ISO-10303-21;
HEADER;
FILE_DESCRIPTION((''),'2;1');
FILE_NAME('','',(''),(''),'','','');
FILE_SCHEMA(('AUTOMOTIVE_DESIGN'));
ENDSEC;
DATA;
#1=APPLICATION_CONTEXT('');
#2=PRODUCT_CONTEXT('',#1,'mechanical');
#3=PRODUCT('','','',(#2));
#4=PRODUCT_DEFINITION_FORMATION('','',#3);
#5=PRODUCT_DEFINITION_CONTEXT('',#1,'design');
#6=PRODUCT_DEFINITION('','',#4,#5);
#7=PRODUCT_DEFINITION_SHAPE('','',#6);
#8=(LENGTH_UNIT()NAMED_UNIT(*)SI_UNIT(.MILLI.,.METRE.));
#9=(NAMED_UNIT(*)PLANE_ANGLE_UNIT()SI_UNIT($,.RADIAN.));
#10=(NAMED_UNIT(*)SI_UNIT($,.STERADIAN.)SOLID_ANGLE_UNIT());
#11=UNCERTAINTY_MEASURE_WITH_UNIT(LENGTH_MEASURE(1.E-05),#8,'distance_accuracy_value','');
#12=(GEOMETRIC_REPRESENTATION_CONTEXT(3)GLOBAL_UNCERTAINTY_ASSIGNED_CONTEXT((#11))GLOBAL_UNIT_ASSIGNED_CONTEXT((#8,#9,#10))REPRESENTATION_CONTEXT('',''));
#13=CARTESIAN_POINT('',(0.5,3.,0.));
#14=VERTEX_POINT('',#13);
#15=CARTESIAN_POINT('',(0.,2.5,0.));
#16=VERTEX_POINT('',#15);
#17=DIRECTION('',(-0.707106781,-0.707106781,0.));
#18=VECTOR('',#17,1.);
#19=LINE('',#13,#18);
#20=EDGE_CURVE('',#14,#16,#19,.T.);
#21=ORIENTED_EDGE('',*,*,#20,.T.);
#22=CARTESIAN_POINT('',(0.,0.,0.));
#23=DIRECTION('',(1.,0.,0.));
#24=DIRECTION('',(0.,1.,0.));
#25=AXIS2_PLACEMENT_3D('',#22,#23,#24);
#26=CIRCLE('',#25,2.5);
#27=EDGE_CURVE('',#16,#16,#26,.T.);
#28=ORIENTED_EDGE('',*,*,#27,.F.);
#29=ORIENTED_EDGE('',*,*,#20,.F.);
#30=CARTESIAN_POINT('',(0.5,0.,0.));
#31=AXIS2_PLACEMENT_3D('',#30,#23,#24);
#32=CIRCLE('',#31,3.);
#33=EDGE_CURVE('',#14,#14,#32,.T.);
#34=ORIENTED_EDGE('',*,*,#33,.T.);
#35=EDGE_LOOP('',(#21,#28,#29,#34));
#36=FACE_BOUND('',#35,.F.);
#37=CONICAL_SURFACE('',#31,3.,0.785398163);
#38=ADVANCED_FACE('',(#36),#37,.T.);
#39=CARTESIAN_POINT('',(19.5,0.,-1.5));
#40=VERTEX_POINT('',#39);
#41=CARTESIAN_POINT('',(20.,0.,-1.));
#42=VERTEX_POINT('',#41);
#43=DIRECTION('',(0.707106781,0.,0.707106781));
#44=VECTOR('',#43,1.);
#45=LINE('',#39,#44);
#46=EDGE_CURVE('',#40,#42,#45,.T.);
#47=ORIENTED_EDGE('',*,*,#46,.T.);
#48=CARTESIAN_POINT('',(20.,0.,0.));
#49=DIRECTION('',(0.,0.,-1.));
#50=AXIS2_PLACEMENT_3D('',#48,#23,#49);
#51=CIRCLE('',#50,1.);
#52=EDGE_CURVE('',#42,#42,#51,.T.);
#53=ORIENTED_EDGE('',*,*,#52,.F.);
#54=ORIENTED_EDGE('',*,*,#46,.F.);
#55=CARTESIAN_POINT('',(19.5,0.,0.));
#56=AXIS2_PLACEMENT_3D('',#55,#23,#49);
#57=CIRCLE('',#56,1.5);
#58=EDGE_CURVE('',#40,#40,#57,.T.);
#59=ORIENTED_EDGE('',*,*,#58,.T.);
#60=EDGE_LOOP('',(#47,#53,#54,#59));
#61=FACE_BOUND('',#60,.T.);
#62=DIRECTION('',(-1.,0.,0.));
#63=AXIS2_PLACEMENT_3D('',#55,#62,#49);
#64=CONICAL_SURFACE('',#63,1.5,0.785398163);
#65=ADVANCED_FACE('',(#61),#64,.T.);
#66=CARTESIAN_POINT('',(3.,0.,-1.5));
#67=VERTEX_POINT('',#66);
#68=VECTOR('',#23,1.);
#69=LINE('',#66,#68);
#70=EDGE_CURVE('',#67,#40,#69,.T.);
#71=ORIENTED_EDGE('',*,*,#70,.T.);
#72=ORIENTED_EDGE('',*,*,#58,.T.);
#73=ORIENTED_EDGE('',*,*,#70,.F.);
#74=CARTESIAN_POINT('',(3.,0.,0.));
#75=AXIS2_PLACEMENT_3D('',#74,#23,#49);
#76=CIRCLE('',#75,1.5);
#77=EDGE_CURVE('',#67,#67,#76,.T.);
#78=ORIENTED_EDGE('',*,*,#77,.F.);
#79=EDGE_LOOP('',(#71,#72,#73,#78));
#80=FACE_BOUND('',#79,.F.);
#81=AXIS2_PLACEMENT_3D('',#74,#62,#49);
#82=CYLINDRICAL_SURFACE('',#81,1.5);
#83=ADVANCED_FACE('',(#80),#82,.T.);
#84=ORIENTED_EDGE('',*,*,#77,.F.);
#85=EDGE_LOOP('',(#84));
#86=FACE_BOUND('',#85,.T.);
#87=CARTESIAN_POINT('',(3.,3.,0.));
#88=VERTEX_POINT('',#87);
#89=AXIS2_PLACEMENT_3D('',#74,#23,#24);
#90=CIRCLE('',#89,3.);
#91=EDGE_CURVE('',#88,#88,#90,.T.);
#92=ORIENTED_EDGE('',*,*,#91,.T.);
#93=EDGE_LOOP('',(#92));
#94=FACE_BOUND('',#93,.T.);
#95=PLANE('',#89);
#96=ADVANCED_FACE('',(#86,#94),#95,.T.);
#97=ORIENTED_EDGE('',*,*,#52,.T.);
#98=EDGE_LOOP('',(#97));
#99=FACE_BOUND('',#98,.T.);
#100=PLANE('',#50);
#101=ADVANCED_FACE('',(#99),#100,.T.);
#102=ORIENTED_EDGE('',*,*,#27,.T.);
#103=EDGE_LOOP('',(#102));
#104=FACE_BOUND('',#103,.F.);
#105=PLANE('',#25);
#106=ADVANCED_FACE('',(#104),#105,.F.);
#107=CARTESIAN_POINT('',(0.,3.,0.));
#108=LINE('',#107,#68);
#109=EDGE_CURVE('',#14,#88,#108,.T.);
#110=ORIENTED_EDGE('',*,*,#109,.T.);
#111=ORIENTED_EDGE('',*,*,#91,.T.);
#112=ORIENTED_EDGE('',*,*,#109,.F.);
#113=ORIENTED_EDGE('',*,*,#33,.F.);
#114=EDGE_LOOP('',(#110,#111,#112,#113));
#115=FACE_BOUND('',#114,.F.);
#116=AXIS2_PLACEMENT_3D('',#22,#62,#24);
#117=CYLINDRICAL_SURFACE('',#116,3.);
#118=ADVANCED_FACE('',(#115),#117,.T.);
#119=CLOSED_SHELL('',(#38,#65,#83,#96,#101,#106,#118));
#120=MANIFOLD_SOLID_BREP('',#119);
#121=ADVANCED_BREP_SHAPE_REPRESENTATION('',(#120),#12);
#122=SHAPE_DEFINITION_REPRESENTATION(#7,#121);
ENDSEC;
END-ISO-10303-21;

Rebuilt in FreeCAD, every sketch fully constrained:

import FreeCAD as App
import Part
import Sketcher


def edges_at(feature, points):
    """Names of the edges that pass closest to the given points."""
    edges = feature.Shape.Edges
    near = lambda p: min(range(len(edges)), key=lambda i: edges[i].distToShape(Part.Vertex(*p))[0])
    return sorted({f"Edge{near(p) + 1}" for p in points})

doc = App.newDocument("Part")
body = doc.addObject("PartDesign::Body", "Body")

# Sketch on YZ plane
sketch1 = body.newObject("Sketcher::SketchObject", "Sketch")
sketch1.AttachmentSupport = (doc.getObject("YZ_Plane"), [""])
sketch1.MapMode = "FlatFace"
sketch1.addGeometry(Part.Circle(App.Vector(0, 0, 0), App.Vector(0, 0, 1), 3), False)
sketch1.addConstraint(Sketcher.Constraint("Coincident", 0, 3, -1, 1))
sketch1.addConstraint(Sketcher.Constraint("Diameter", 0, 6.0))
pad1 = body.newObject("PartDesign::Pad", "Pad")
pad1.Profile = sketch1
pad1.Length = 3
doc.recompute()

chamfer = body.newObject("PartDesign::Chamfer", "Chamfer")
chamfer.Base = (pad1, edges_at(pad1, [(0, -3, 0)]))
chamfer.Size = 0.5

# Sketch on YZ plane
sketch2 = body.newObject("Sketcher::SketchObject", "Sketch001")
sketch2.AttachmentSupport = (doc.getObject("YZ_Plane"), [""])
sketch2.MapMode = "FlatFace"
sketch2.AttachmentOffset = App.Placement(App.Vector(0, 0, 3), App.Rotation())
sketch2.addGeometry(Part.Circle(App.Vector(0, 0, 0), App.Vector(0, 0, 1), 1.5), False)
sketch2.addConstraint(Sketcher.Constraint("Coincident", 0, 3, -1, 1))
sketch2.addConstraint(Sketcher.Constraint("Diameter", 0, 3.0))
pad2 = body.newObject("PartDesign::Pad", "Pad001")
pad2.Profile = sketch2
pad2.Length = 17
doc.recompute()

chamfer2 = body.newObject("PartDesign::Chamfer", "Chamfer001")
chamfer2.Base = (pad2, edges_at(pad2, [(20, 0, 1.5)]))
chamfer2.Size = 0.5

doc.recompute()
